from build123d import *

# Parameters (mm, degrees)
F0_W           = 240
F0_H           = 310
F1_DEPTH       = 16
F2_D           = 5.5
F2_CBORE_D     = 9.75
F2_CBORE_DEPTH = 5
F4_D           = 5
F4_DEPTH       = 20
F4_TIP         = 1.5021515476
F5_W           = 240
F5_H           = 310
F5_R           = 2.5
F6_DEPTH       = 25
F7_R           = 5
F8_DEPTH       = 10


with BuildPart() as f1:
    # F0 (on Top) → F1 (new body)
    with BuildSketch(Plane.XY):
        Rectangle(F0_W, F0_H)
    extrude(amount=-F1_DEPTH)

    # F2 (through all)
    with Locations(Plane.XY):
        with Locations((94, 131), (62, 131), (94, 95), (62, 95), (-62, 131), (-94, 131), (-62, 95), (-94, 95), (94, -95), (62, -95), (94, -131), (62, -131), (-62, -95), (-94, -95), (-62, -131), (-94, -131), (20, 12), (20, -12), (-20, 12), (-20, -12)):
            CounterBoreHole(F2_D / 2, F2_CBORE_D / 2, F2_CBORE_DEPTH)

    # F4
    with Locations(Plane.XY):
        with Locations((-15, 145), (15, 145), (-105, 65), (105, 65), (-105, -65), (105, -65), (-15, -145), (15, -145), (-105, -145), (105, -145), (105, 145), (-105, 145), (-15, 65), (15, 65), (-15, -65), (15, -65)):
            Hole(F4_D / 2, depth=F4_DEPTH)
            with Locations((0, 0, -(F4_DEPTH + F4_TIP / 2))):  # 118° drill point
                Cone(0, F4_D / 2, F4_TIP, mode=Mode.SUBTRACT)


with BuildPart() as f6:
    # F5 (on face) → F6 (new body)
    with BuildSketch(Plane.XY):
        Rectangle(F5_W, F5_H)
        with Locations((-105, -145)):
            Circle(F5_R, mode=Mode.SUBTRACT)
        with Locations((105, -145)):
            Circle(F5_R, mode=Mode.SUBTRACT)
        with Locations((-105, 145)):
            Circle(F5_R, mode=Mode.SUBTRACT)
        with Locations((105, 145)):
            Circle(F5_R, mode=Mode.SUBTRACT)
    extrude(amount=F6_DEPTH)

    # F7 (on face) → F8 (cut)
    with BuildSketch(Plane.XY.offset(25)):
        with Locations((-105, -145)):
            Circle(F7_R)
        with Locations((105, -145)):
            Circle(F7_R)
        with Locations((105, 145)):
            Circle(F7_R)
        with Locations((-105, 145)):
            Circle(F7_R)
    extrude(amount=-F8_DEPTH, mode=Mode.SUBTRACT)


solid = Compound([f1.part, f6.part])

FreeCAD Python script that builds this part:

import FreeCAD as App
import Part
import Sketcher

V = App.Vector
Q = App.Units.Quantity


def add_polygon(sketch, points):
    """Adds a closed chain of lines whose ends are joined by coincident constraints."""
    first, n = sketch.GeometryCount, len(points)
    for a, b in zip(points, points[1:] + points[:1]):
        sketch.addGeometry(Part.LineSegment(App.Vector(*a, 0), App.Vector(*b, 0)), False)
    for i in range(n):
        sketch.addConstraint(Sketcher.Constraint("Coincident", first + i, 2, first + (i + 1) % n, 1))

doc = App.newDocument("Part")
body = doc.addObject("PartDesign::Body", "Body")

# Sketch on XY plane
sketch1 = doc.addObject("Sketcher::SketchObject", "Sketch")
body.addObject(sketch1)
sketch1.AttachmentSupport = (doc.XY_Plane, [""])
sketch1.MapMode = "FlatFace"
add_polygon(sketch1, [(-120, 155), (-120, -155), (120, -155), (120, 155)])  # lines 0-3
sketch1.addConstraint(Sketcher.Constraint("Vertical", 0))
sketch1.addConstraint(Sketcher.Constraint("Horizontal", 1))
sketch1.addConstraint(Sketcher.Constraint("Vertical", 2))
sketch1.addConstraint(Sketcher.Constraint("Horizontal", 3))
sketch1.addConstraint(Sketcher.Constraint("Symmetric", 0, 2, 2, 2, -1, 1))
sketch1.addConstraint(Sketcher.Constraint("DistanceX", 1, 1, 1, 2, Q("240 mm")))
sketch1.addConstraint(Sketcher.Constraint("DistanceY", 0, 2, 0, 1, Q("310 mm")))
pad1 = doc.addObject("PartDesign::Pad", "Pad")
body.addObject(pad1)
pad1.Profile = sketch1
pad1.Length = 16
pad1.Reversed = True

# Sketch on XY plane
sketch2 = doc.addObject("Sketcher::SketchObject", "Sketch001")
body.addObject(sketch2)
sketch2.AttachmentSupport = (doc.XY_Plane, [""])
sketch2.MapMode = "FlatFace"
sketch2.addGeometry(Part.Circle(V(94, 131, 0), V(0, 0, 1), 2.75), False)
sketch2.addGeometry(Part.Circle(V(62, 131, 0), V(0, 0, 1), 2.75), False)
sketch2.addGeometry(Part.Circle(V(94, 95, 0), V(0, 0, 1), 2.75), False)
sketch2.addGeometry(Part.Circle(V(62, 95, 0), V(0, 0, 1), 2.75), False)
sketch2.addGeometry(Part.Circle(V(-62, 131, 0), V(0, 0, 1), 2.75), False)
sketch2.addGeometry(Part.Circle(V(-94, 131, 0), V(0, 0, 1), 2.75), False)
sketch2.addGeometry(Part.Circle(V(-62, 95, 0), V(0, 0, 1), 2.75), False)
sketch2.addGeometry(Part.Circle(V(-94, 95, 0), V(0, 0, 1), 2.75), False)
sketch2.addGeometry(Part.Circle(V(94, -95, 0), V(0, 0, 1), 2.75), False)
sketch2.addGeometry(Part.Circle(V(62, -95, 0), V(0, 0, 1), 2.75), False)
sketch2.addGeometry(Part.Circle(V(94, -131, 0), V(0, 0, 1), 2.75), False)
sketch2.addGeometry(Part.Circle(V(62, -131, 0), V(0, 0, 1), 2.75), False)
sketch2.addGeometry(Part.Circle(V(-62, -95, 0), V(0, 0, 1), 2.75), False)
sketch2.addGeometry(Part.Circle(V(-94, -95, 0), V(0, 0, 1), 2.75), False)
sketch2.addGeometry(Part.Circle(V(-62, -131, 0), V(0, 0, 1), 2.75), False)
sketch2.addGeometry(Part.Circle(V(-94, -131, 0), V(0, 0, 1), 2.75), False)
sketch2.addGeometry(Part.Circle(V(20, 12, 0), V(0, 0, 1), 2.75), False)
sketch2.addGeometry(Part.Circle(V(20, -12, 0), V(0, 0, 1), 2.75), False)
sketch2.addGeometry(Part.Circle(V(-20, 12, 0), V(0, 0, 1), 2.75), False)
sketch2.addGeometry(Part.Circle(V(-20, -12, 0), V(0, 0, 1), 2.75), False)
sketch2.addConstraint(Sketcher.Constraint("Equal", 0, 1))
sketch2.addConstraint(Sketcher.Constraint("Equal", 1, 2))
sketch2.addConstraint(Sketcher.Constraint("Equal", 2, 3))
sketch2.addConstraint(Sketcher.Constraint("Equal", 3, 4))
sketch2.addConstraint(Sketcher.Constraint("Equal", 4, 5))
sketch2.addConstraint(Sketcher.Constraint("Equal", 5, 6))
sketch2.addConstraint(Sketcher.Constraint("Equal", 6, 7))
sketch2.addConstraint(Sketcher.Constraint("Equal", 7, 8))
sketch2.addConstraint(Sketcher.Constraint("Equal", 8, 9))
sketch2.addConstraint(Sketcher.Constraint("Equal", 9, 10))
sketch2.addConstraint(Sketcher.Constraint("Equal", 10, 11))
sketch2.addConstraint(Sketcher.Constraint("Equal", 11, 12))
sketch2.addConstraint(Sketcher.Constraint("Equal", 12, 13))
sketch2.addConstraint(Sketcher.Constraint("Equal", 13, 14))
sketch2.addConstraint(Sketcher.Constraint("Equal", 14, 15))
sketch2.addConstraint(Sketcher.Constraint("Equal", 15, 16))
sketch2.addConstraint(Sketcher.Constraint("Equal", 16, 17))
sketch2.addConstraint(Sketcher.Constraint("Equal", 17, 18))
sketch2.addConstraint(Sketcher.Constraint("Equal", 18, 19))
sketch2.addConstraint(Sketcher.Constraint("Symmetric", 7, 3, 8, 3, -1, 1))
sketch2.addConstraint(Sketcher.Constraint("Symmetric", 6, 3, 9, 3, -1, 1))
sketch2.addConstraint(Sketcher.Constraint("Symmetric", 5, 3, 10, 3, -1, 1))
sketch2.addConstraint(Sketcher.Constraint("Symmetric", 4, 3, 11, 3, -1, 1))
sketch2.addConstraint(Sketcher.Constraint("Symmetric", 3, 3, 12, 3, -1, 1))
sketch2.addConstraint(Sketcher.Constraint("Symmetric", 2, 3, 13, 3, -1, 1))
sketch2.addConstraint(Sketcher.Constraint("Symmetric", 1, 3, 14, 3, -1, 1))
sketch2.addConstraint(Sketcher.Constraint("Symmetric", 0, 3, 15, 3, -1, 1))
sketch2.addConstraint(Sketcher.Constraint("Symmetric", 17, 3, 18, 3, -1, 1))
sketch2.addConstraint(Sketcher.Constraint("Symmetric", 16, 3, 19, 3, -1, 1))
sketch2.addConstraint(Sketcher.Constraint("Symmetric", 1, 3, 4, 3, -2))
sketch2.addConstraint(Sketcher.Constraint("Symmetric", 0, 3, 5, 3, -2))
sketch2.addConstraint(Sketcher.Constraint("Symmetric", 3, 3, 6, 3, -2))
sketch2.addConstraint(Sketcher.Constraint("Symmetric", 2, 3, 7, 3, -2))
sketch2.addConstraint(Sketcher.Constraint("Symmetric", 16, 3, 18, 3, -2))
sketch2.addConstraint(Sketcher.Constraint("Horizontal", 0, 3, 1, 3))
sketch2.addConstraint(Sketcher.Constraint("Horizontal", 2, 3, 3, 3))
sketch2.addConstraint(Sketcher.Constraint("Vertical", 0, 3, 2, 3))
sketch2.addConstraint(Sketcher.Constraint("Vertical", 1, 3, 3, 3))
sketch2.addConstraint(Sketcher.Constraint("Diameter", 0, Q("5.5 mm")))
sketch2.addConstraint(Sketcher.Constraint("DistanceX", -1, 1, 0, 3, Q("94 mm")))
sketch2.addConstraint(Sketcher.Constraint("DistanceY", -1, 1, 0, 3, Q("131 mm")))
sketch2.addConstraint(Sketcher.Constraint("DistanceX", -1, 1, 1, 3, Q("62 mm")))
sketch2.addConstraint(Sketcher.Constraint("DistanceY", -1, 1, 2, 3, Q("95 mm")))
sketch2.addConstraint(Sketcher.Constraint("DistanceX", -1, 1, 16, 3, Q("20 mm")))
sketch2.addConstraint(Sketcher.Constraint("DistanceY", -1, 1, 16, 3, Q("12 mm")))
doc.recompute()
hole = doc.addObject("PartDesign::Hole", "Hole")
body.addObject(hole)
hole.Profile = sketch2
hole.ThreadType = "None"
hole.Diameter = 5.5
hole.DepthType = "ThroughAll"
hole.HoleCutType = "Counterbore"
hole.HoleCutDiameter = 9.75
hole.HoleCutDepth = 5

# Sketch on XY plane
sketch3 = doc.addObject("Sketcher::SketchObject", "Sketch002")
body.addObject(sketch3)
sketch3.AttachmentSupport = (doc.XY_Plane, [""])
sketch3.MapMode = "FlatFace"
sketch3.addGeometry(Part.Circle(V(-15, 145, 0), V(0, 0, 1), 2.5), False)
sketch3.addGeometry(Part.Circle(V(15, 145, 0), V(0, 0, 1), 2.5), False)
sketch3.addGeometry(Part.Circle(V(-105, 65, 0), V(0, 0, 1), 2.5), False)
sketch3.addGeometry(Part.Circle(V(105, 65, 0), V(0, 0, 1), 2.5), False)
sketch3.addGeometry(Part.Circle(V(-105, -65, 0), V(0, 0, 1), 2.5), False)
sketch3.addGeometry(Part.Circle(V(105, -65, 0), V(0, 0, 1), 2.5), False)
sketch3.addGeometry(Part.Circle(V(-15, -145, 0), V(0, 0, 1), 2.5), False)
sketch3.addGeometry(Part.Circle(V(15, -145, 0), V(0, 0, 1), 2.5), False)
sketch3.addGeometry(Part.Circle(V(-105, -145, 0), V(0, 0, 1), 2.5), False)
sketch3.addGeometry(Part.Circle(V(105, -145, 0), V(0, 0, 1), 2.5), False)
sketch3.addGeometry(Part.Circle(V(105, 145, 0), V(0, 0, 1), 2.5), False)
sketch3.addGeometry(Part.Circle(V(-105, 145, 0), V(0, 0, 1), 2.5), False)
sketch3.addGeometry(Part.Circle(V(-15, 65, 0), V(0, 0, 1), 2.5), False)
sketch3.addGeometry(Part.Circle(V(15, 65, 0), V(0, 0, 1), 2.5), False)
sketch3.addGeometry(Part.Circle(V(-15, -65, 0), V(0, 0, 1), 2.5), False)
sketch3.addGeometry(Part.Circle(V(15, -65, 0), V(0, 0, 1), 2.5), False)
sketch3.addConstraint(Sketcher.Constraint("Equal", 0, 1))
sketch3.addConstraint(Sketcher.Constraint("Equal", 1, 2))
sketch3.addConstraint(Sketcher.Constraint("Equal", 2, 3))
sketch3.addConstraint(Sketcher.Constraint("Equal", 3, 4))
sketch3.addConstraint(Sketcher.Constraint("Equal", 4, 5))
sketch3.addConstraint(Sketcher.Constraint("Equal", 5, 6))
sketch3.addConstraint(Sketcher.Constraint("Equal", 6, 7))
sketch3.addConstraint(Sketcher.Constraint("Equal", 7, 8))
sketch3.addConstraint(Sketcher.Constraint("Equal", 8, 9))
sketch3.addConstraint(Sketcher.Constraint("Equal", 9, 10))
sketch3.addConstraint(Sketcher.Constraint("Equal", 10, 11))
sketch3.addConstraint(Sketcher.Constraint("Equal", 11, 12))
sketch3.addConstraint(Sketcher.Constraint("Equal", 12, 13))
sketch3.addConstraint(Sketcher.Constraint("Equal", 13, 14))
sketch3.addConstraint(Sketcher.Constraint("Equal", 14, 15))
sketch3.addConstraint(Sketcher.Constraint("Symmetric", 3, 3, 4, 3, -1, 1))
sketch3.addConstraint(Sketcher.Constraint("Symmetric", 2, 3, 5, 3, -1, 1))
sketch3.addConstraint(Sketcher.Constraint("Symmetric", 1, 3, 6, 3, -1, 1))
sketch3.addConstraint(Sketcher.Constraint("Symmetric", 0, 3, 7, 3, -1, 1))
sketch3.addConstraint(Sketcher.Constraint("Symmetric", 8, 3, 10, 3, -1, 1))
sketch3.addConstraint(Sketcher.Constraint("Symmetric", 9, 3, 11, 3, -1, 1))
sketch3.addConstraint(Sketcher.Constraint("Symmetric", 13, 3, 14, 3, -1, 1))
sketch3.addConstraint(Sketcher.Constraint("Symmetric", 12, 3, 15, 3, -1, 1))
sketch3.addConstraint(Sketcher.Constraint("Symmetric", 0, 3, 1, 3, -2))
sketch3.addConstraint(Sketcher.Constraint("Symmetric", 2, 3, 3, 3, -2))
sketch3.addConstraint(Sketcher.Constraint("Symmetric", 8, 3, 9, 3, -2))
sketch3.addConstraint(Sketcher.Constraint("Symmetric", 12, 3, 13, 3, -2))
sketch3.addConstraint(Sketcher.Constraint("Horizontal", 7, 3, 8, 3))
sketch3.addConstraint(Sketcher.Constraint("Horizontal", 3, 3, 12, 3))
sketch3.addConstraint(Sketcher.Constraint("Vertical", 4, 3, 8, 3))
sketch3.addConstraint(Sketcher.Constraint("Vertical", 6, 3, 12, 3))
sketch3.addConstraint(Sketcher.Constraint("Diameter", 0, Q("5 mm")))
sketch3.addConstraint(Sketcher.Constraint("DistanceX", 0, 3, -1, 1, Q("15 mm")))
sketch3.addConstraint(Sketcher.Constraint("DistanceY", -1, 1, 0, 3, Q("145 mm")))
sketch3.addConstraint(Sketcher.Constraint("DistanceX", 2, 3, -1, 1, Q("105 mm")))
sketch3.addConstraint(Sketcher.Constraint("DistanceY", -1, 1, 2, 3, Q("65 mm")))
doc.recompute()
hole2 = doc.addObject("PartDesign::Hole", "Hole001")
body.addObject(hole2)
hole2.Profile = sketch3
hole2.ThreadType = "None"
hole2.Diameter = 5
hole2.DepthType = "Dimension"
hole2.Depth = 20
hole2.DrillPoint = "Angled"
hole2.DrillPointAngle = 118
body2 = doc.addObject("PartDesign::Body", "Body001")

# Sketch on XY plane
sketch4 = doc.addObject("Sketcher::SketchObject", "Sketch003")
body2.addObject(sketch4)
sketch4.AttachmentSupport = (doc.getObject("XY_Plane001"), [""])
sketch4.MapMode = "FlatFace"
add_polygon(sketch4, [(-120, 155), (-120, -155), (120, -155), (120, 155)])  # lines 0-3
sketch4.addGeometry(Part.Circle(V(-105, -145, 0), V(0, 0, 1), 2.5), False)  # 4
sketch4.addGeometry(Part.Circle(V(105, -145, 0), V(0, 0, 1), 2.5), False)  # 5
sketch4.addGeometry(Part.Circle(V(-105, 145, 0), V(0, 0, 1), 2.5), False)  # 6
sketch4.addGeometry(Part.Circle(V(105, 145, 0), V(0, 0, 1), 2.5), False)  # 7
sketch4.addConstraint(Sketcher.Constraint("Vertical", 0))
sketch4.addConstraint(Sketcher.Constraint("Horizontal", 1))
sketch4.addConstraint(Sketcher.Constraint("Vertical", 2))
sketch4.addConstraint(Sketcher.Constraint("Horizontal", 3))
sketch4.addConstraint(Sketcher.Constraint("Equal", 4, 5))
sketch4.addConstraint(Sketcher.Constraint("Equal", 5, 6))
sketch4.addConstraint(Sketcher.Constraint("Equal", 6, 7))
sketch4.addConstraint(Sketcher.Constraint("Symmetric", 5, 3, 6, 3, -1, 1))
sketch4.addConstraint(Sketcher.Constraint("Symmetric", 4, 3, 7, 3, -1, 1))
sketch4.addConstraint(Sketcher.Constraint("Symmetric", 0, 2, 2, 2, -1, 1))
sketch4.addConstraint(Sketcher.Constraint("Symmetric", 4, 3, 5, 3, -2))
sketch4.addConstraint(Sketcher.Constraint("Diameter", 4, Q("5 mm")))
sketch4.addConstraint(Sketcher.Constraint("DistanceX", 1, 1, 1, 2, Q("240 mm")))
sketch4.addConstraint(Sketcher.Constraint("DistanceY", 0, 2, 0, 1, Q("310 mm")))
sketch4.addConstraint(Sketcher.Constraint("DistanceX", 4, 3, -1, 1, Q("105 mm")))
sketch4.addConstraint(Sketcher.Constraint("DistanceY", 4, 3, -1, 1, Q("145 mm")))
pad2 = doc.addObject("PartDesign::Pad", "Pad001")
body2.addObject(pad2)
pad2.Profile = sketch4
pad2.Length = 25

# Sketch on XY plane
sketch5 = doc.addObject("Sketcher::SketchObject", "Sketch004")
body2.addObject(sketch5)
sketch5.AttachmentSupport = (doc.getObject("XY_Plane001"), [""])
sketch5.MapMode = "FlatFace"
sketch5.AttachmentOffset = App.Placement(V(0, 0, 25), App.Rotation())
sketch5.addGeometry(Part.Circle(V(-105, -145, 0), V(0, 0, 1), 5), False)
sketch5.addGeometry(Part.Circle(V(105, -145, 0), V(0, 0, 1), 5), False)
sketch5.addGeometry(Part.Circle(V(105, 145, 0), V(0, 0, 1), 5), False)
sketch5.addGeometry(Part.Circle(V(-105, 145, 0), V(0, 0, 1), 5), False)
sketch5.addConstraint(Sketcher.Constraint("Equal", 0, 1))
sketch5.addConstraint(Sketcher.Constraint("Equal", 1, 2))
sketch5.addConstraint(Sketcher.Constraint("Equal", 2, 3))
sketch5.addConstraint(Sketcher.Constraint("Symmetric", 0, 3, 2, 3, -1, 1))
sketch5.addConstraint(Sketcher.Constraint("Symmetric", 1, 3, 3, 3, -1, 1))
sketch5.addConstraint(Sketcher.Constraint("Symmetric", 0, 3, 1, 3, -2))
sketch5.addConstraint(Sketcher.Constraint("Diameter", 0, Q("10 mm")))
sketch5.addConstraint(Sketcher.Constraint("DistanceX", 0, 3, -1, 1, Q("105 mm")))
sketch5.addConstraint(Sketcher.Constraint("DistanceY", 0, 3, -1, 1, Q("145 mm")))
pocket1 = doc.addObject("PartDesign::Pocket", "Pocket")
body2.addObject(pocket1)
pocket1.Profile = sketch5
pocket1.Length = 10

doc.recompute()
